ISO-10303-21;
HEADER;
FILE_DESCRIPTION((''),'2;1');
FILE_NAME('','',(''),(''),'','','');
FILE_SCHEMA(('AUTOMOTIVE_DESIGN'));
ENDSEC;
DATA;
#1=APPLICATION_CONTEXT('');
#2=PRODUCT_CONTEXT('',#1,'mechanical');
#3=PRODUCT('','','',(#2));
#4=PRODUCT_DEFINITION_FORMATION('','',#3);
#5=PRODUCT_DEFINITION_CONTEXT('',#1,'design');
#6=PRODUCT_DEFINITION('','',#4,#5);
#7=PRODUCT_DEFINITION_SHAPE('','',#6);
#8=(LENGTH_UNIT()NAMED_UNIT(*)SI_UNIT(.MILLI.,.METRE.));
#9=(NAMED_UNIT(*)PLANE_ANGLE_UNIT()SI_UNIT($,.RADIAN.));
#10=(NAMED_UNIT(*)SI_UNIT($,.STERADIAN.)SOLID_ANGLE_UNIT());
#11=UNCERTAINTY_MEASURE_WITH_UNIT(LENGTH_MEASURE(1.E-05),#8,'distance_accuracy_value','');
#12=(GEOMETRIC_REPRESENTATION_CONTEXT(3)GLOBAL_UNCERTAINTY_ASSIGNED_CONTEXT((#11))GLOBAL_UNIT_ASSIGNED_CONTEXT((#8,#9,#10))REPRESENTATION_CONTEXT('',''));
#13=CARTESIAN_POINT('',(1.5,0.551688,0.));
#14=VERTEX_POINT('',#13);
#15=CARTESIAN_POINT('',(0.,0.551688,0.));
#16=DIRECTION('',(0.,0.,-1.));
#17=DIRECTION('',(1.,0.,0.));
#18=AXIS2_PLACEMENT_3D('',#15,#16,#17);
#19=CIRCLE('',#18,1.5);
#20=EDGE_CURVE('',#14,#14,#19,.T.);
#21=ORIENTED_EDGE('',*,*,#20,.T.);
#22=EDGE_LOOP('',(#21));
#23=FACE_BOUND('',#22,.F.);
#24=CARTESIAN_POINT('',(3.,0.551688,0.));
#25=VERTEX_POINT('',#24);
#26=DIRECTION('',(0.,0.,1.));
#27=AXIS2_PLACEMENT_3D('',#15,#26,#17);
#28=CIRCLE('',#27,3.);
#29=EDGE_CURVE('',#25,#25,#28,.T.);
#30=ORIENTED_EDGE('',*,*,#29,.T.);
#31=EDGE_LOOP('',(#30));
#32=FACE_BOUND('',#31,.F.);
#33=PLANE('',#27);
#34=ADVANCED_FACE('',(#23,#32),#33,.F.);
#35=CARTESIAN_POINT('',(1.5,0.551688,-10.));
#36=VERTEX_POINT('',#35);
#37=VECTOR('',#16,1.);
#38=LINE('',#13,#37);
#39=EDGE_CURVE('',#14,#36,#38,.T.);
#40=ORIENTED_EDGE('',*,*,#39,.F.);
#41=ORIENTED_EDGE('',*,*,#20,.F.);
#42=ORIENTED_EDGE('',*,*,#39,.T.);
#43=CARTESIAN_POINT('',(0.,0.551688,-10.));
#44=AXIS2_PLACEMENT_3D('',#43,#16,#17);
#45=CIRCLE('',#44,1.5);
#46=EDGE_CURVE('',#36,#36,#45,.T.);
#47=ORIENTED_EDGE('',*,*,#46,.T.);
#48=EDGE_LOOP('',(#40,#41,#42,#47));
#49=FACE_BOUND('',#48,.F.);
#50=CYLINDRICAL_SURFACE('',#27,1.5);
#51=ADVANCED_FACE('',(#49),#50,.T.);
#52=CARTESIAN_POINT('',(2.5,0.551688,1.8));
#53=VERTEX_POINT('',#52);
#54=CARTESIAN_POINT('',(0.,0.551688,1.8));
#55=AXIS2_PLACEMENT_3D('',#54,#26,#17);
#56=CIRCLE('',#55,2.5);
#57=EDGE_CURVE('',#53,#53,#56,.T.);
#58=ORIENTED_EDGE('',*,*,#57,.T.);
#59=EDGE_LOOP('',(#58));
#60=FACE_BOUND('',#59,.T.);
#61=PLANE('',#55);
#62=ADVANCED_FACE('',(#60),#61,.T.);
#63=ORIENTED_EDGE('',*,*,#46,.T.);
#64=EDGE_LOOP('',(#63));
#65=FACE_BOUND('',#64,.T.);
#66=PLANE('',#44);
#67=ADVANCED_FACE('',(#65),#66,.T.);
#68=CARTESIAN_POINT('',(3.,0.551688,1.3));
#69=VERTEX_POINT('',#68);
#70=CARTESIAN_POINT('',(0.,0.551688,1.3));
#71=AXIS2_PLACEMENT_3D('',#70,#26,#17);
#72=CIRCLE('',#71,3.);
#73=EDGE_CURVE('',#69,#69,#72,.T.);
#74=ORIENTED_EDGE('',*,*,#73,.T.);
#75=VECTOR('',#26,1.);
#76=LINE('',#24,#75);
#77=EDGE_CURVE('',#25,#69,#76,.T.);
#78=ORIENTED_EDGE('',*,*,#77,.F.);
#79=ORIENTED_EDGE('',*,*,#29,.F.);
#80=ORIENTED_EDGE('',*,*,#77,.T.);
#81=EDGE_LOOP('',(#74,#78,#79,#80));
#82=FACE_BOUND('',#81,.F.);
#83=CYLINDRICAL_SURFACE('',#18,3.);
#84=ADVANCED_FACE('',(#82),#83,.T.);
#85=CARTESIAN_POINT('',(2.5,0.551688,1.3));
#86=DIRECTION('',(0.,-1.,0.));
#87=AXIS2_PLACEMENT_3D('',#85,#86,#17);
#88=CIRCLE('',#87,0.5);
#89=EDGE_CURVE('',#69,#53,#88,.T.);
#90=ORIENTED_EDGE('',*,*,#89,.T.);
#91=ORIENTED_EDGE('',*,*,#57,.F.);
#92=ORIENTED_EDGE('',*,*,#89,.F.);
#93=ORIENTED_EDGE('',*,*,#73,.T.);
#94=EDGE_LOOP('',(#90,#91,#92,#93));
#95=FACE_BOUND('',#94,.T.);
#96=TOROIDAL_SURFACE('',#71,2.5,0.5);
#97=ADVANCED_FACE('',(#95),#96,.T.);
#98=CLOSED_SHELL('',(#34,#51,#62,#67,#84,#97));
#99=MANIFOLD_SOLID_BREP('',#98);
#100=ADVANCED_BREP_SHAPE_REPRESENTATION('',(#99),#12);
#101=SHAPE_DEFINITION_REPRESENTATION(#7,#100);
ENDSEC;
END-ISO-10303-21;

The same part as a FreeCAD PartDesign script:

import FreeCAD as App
import Part
import Sketcher

V = App.Vector
Q = App.Units.Quantity


def edges_at(feature, points):
    """Names of the edges that pass closest to the given points."""
    edges = feature.Shape.Edges
    near = lambda p: min(range(len(edges)), key=lambda i: edges[i].distToShape(Part.Vertex(*p))[0])
    return sorted({f"Edge{near(p) + 1}" for p in points})

doc = App.newDocument("Part")
body = doc.addObject("PartDesign::Body", "Body")

sketch1 = body.newObject("Sketcher::SketchObject", "Sketch")
sketch1.AttachmentSupport = (doc.getObject("XY_Plane"), [""])
sketch1.MapMode = "FlatFace"
sketch1.addGeometry(Part.Circle(V(0, 0.6, 0), V(0, 0, 1), 3), False)
sketch1.addConstraint(Sketcher.Constraint("PointOnObject", 0, 3, -2))
sketch1.addConstraint(Sketcher.Constraint("Diameter", 0, Q("6 mm")))
sketch1.addConstraint(Sketcher.Constraint("DistanceY", -1, 1, 0, 3, Q("0.551688 mm")))
pad1 = body.newObject("PartDesign::Pad", "Pad")
pad1.Profile = sketch1
pad1.Length = 1.8

sketch2 = body.newObject("Sketcher::SketchObject", "Sketch001")
sketch2.AttachmentSupport = (doc.getObject("XY_Plane"), [""])
sketch2.MapMode = "FlatFace"
sketch2.addGeometry(Part.Circle(V(0, 0.6, 0), V(0, 0, 1), 1.5), False)
sketch2.addConstraint(Sketcher.Constraint("PointOnObject", 0, 3, -2))
sketch2.addConstraint(Sketcher.Constraint("Diameter", 0, Q("3 mm")))
sketch2.addConstraint(Sketcher.Constraint("DistanceY", -1, 1, 0, 3, Q("0.551688 mm")))
pad2 = body.newObject("PartDesign::Pad", "Pad001")
pad2.Profile = sketch2
pad2.Length = 10
pad2.Reversed = True
doc.recompute()

fillet = body.newObject("PartDesign::Fillet", "Fillet")
fillet.Base = (pad2, edges_at(pad2, [(-3, 0.552, 1.8)]))
fillet.Radius = 0.5

doc.recompute()
